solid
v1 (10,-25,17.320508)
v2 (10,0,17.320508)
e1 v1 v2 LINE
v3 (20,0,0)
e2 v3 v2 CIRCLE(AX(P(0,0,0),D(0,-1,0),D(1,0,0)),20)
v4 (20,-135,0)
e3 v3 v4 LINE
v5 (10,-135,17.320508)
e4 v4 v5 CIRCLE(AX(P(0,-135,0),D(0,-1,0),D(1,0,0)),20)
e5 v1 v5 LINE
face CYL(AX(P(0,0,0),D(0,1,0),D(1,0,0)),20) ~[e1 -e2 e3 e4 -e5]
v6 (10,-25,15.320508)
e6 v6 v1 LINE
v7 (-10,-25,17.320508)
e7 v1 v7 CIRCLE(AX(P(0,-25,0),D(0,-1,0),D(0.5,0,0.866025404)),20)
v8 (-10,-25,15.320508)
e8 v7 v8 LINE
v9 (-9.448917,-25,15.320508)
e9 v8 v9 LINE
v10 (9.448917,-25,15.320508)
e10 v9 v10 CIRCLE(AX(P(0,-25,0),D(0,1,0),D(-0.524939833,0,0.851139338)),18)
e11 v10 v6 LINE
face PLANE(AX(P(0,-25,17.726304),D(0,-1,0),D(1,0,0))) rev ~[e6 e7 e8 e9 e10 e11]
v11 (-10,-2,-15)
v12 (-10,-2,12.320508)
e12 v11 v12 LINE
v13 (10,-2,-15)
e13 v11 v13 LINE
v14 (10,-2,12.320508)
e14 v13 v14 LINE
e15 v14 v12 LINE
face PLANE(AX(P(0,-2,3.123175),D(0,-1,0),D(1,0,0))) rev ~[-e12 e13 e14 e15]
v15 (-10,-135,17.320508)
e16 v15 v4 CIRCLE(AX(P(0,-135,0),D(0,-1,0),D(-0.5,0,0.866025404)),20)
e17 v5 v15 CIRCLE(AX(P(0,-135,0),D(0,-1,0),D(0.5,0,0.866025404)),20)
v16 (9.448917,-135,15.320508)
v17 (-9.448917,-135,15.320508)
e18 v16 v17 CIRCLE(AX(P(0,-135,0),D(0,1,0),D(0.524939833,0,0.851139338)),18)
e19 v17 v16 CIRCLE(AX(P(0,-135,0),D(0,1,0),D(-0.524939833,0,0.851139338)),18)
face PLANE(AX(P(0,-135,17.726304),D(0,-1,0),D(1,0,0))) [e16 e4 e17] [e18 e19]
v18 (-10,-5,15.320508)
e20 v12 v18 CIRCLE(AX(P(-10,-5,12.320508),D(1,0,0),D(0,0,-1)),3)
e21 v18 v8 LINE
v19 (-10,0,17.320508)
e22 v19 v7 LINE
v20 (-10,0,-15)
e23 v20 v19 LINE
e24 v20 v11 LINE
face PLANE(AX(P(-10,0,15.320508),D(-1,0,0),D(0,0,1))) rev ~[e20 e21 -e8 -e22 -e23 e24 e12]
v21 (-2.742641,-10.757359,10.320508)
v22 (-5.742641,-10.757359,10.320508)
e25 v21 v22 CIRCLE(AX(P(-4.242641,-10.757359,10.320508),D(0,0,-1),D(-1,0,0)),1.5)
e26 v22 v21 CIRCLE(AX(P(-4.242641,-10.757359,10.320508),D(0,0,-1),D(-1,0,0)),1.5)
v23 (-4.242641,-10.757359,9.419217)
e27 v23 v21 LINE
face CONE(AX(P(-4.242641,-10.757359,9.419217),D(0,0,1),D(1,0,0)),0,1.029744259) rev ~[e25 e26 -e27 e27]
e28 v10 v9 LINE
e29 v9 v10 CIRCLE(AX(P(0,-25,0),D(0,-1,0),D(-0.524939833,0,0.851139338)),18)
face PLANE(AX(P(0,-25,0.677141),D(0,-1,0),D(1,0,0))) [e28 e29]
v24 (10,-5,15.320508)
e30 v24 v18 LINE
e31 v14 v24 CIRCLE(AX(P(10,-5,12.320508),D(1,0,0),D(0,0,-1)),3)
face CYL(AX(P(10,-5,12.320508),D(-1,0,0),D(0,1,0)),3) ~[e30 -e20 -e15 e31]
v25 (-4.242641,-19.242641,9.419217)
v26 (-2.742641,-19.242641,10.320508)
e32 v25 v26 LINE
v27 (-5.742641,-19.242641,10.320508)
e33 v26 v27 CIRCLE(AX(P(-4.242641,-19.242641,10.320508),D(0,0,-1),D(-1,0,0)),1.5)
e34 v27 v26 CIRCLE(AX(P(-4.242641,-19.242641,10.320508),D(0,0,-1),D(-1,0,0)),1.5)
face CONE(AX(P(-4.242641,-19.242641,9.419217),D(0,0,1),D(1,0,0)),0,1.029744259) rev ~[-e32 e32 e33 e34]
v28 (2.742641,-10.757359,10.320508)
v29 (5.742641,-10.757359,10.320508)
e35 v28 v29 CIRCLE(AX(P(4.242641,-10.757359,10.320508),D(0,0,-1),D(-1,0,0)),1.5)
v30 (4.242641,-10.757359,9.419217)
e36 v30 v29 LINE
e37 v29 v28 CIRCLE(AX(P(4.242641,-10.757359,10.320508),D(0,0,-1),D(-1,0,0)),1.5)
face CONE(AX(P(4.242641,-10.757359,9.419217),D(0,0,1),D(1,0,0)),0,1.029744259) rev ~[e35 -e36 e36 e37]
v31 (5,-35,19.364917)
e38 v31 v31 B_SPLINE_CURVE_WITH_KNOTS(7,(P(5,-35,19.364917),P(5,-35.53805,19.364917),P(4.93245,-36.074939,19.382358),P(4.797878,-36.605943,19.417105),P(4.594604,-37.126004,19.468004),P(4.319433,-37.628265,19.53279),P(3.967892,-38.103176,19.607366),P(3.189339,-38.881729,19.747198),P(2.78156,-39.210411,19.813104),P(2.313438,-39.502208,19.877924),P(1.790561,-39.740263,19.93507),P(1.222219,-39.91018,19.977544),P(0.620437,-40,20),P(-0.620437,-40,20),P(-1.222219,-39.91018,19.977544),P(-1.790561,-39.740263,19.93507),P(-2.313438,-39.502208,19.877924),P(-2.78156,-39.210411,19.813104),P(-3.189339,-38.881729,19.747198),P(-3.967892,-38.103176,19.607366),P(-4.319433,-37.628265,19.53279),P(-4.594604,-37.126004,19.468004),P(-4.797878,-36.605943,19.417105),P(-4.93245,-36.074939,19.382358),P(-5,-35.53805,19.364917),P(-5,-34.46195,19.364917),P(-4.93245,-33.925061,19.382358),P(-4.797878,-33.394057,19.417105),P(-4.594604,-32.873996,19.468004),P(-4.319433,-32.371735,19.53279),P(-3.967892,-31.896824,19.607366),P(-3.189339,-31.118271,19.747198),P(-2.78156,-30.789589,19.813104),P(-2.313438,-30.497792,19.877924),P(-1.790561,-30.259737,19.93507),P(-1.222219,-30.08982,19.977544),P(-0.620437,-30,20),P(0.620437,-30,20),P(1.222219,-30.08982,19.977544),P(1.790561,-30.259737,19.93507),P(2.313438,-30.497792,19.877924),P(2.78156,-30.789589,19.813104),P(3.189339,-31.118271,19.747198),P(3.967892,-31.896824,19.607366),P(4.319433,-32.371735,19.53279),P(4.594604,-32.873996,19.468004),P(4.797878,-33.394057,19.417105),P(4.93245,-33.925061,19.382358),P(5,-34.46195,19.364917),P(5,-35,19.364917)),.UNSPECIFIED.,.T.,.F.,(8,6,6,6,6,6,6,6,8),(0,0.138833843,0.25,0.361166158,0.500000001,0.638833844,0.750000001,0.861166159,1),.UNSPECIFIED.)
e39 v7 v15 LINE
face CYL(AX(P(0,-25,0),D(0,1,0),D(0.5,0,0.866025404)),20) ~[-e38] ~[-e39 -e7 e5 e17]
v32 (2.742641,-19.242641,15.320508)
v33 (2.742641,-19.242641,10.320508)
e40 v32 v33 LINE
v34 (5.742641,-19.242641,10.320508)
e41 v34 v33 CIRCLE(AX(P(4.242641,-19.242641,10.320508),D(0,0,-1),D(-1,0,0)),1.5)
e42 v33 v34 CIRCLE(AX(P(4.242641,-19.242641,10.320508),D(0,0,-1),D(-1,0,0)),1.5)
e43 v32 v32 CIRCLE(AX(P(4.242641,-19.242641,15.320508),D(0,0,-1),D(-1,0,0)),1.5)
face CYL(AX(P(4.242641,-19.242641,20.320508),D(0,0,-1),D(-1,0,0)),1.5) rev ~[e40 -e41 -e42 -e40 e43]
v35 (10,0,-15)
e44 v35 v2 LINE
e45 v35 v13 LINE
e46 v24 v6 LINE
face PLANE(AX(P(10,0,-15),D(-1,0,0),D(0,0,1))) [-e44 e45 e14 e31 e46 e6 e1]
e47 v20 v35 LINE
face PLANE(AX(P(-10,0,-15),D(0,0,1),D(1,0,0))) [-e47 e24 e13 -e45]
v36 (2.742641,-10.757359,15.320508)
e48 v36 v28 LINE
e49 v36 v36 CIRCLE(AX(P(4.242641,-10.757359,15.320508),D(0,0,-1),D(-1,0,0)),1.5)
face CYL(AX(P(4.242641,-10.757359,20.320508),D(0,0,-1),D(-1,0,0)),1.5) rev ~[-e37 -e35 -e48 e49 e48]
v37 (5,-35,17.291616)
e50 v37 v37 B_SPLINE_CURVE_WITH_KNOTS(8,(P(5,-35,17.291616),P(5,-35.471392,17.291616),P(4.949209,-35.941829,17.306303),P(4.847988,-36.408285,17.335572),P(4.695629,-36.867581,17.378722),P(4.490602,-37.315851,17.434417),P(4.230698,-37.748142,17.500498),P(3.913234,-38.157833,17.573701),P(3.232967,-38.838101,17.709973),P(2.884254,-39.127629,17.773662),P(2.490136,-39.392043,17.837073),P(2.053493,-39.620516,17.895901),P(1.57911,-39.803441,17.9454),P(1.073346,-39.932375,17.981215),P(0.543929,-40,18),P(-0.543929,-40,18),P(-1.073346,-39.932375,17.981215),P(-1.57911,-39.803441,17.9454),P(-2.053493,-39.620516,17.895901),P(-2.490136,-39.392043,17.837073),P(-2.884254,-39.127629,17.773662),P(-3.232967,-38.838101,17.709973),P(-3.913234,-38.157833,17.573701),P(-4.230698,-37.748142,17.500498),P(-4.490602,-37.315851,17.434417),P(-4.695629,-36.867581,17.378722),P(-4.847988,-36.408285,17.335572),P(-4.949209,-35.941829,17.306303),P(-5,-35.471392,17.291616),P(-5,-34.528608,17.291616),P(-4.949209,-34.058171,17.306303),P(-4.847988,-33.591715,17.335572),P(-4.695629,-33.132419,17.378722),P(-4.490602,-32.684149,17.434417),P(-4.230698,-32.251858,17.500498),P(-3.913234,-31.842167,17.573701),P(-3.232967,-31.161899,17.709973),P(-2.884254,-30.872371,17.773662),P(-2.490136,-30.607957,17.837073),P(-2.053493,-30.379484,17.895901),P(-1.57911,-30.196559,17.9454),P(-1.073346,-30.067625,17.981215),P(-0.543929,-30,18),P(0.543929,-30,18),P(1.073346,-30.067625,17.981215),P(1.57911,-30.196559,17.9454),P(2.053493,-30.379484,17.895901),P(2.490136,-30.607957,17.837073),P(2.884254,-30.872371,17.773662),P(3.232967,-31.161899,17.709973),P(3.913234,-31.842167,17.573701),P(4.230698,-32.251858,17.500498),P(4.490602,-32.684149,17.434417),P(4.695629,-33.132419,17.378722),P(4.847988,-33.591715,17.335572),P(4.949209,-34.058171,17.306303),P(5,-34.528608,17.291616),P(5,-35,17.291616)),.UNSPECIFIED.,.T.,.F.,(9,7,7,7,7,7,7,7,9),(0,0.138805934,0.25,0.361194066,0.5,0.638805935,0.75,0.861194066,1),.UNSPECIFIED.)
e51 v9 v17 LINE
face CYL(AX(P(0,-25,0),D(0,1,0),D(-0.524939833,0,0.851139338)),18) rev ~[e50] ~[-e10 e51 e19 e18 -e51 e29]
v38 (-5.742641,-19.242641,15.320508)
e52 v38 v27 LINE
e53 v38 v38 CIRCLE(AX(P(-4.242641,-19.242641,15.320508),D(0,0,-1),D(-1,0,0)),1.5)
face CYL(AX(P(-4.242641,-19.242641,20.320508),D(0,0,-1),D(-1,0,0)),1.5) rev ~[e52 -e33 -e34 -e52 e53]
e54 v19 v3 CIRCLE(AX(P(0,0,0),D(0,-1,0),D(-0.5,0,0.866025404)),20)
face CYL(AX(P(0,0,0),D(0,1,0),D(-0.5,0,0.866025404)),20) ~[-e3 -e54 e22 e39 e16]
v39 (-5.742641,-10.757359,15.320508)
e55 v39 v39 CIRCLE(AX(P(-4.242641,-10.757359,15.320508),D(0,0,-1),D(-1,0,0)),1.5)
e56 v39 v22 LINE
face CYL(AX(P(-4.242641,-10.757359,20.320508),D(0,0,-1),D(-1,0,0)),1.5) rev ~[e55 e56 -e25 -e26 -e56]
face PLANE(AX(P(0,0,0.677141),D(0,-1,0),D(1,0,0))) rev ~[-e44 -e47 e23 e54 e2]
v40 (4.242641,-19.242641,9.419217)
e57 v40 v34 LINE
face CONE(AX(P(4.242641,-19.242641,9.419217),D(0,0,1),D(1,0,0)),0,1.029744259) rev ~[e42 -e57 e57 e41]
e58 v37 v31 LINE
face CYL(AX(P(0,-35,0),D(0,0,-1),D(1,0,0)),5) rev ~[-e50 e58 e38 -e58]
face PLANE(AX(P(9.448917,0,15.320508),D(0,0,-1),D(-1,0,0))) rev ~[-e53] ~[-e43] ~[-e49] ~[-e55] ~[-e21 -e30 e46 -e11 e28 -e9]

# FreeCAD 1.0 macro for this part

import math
import FreeCAD as App
import Part
import Sketcher


def edges_at(feature, points):
    """Names of the edges that pass closest to the given points."""
    edges = feature.Shape.Edges
    near = lambda p: min(range(len(edges)), key=lambda i: edges[i].distToShape(Part.Vertex(*p))[0])
    return sorted({f"Edge{near(p) + 1}" for p in points})

doc = App.newDocument("Part")
params = doc.addObject("Spreadsheet::Sheet", "Params")
for row, (alias, value) in enumerate([
    ("sketch1_radius", "20 mm"),
    ("sketch1_radius2", "18 mm"),
    ("sketch1_height", "2 mm"),
    ("pad1_length", "135 mm"),
    ("sketch2_radius", "20 mm"),
    ("sketch2_radius2", "18 mm"),
    ("sketch2_height", "2 mm"),
    ("pad2_length", "110 mm"),
    ("sketch3_radius", "18 mm"),
    ("pad3_length", "25 mm"),
    ("sketch4_width", "20 mm"),
    ("pocket1_length", "2 mm"),
    ("sketch5_diameter", "3 mm"),
    ("hole_diameter", "3 mm"),
    ("hole_depth", "5 mm"),
    ("sketch6_diameter", "10 mm"),
    ("fillet_radius", "3 mm"),
], start=1):
    params.set(f"A{row}", alias)
    params.set(f"B{row}", "=" + value)
    params.setAlias(f"B{row}", alias)

body = doc.addObject("PartDesign::Body", "Body")

# Sketch on XZ plane
sketch1 = body.newObject("Sketcher::SketchObject", "Sketch")
sketch1.AttachmentSupport = (doc.getObject("XZ_Plane"), [""])
sketch1.MapMode = "FlatFace"
sketch1.addGeometry([
    Part.ArcOfCircle(Part.Circle(App.Vector(0, 0, 0), App.Vector(0, 0, 1), 20), math.radians(120), math.radians(360)),  # 0
    Part.ArcOfCircle(Part.Circle(App.Vector(0, 0, 0), App.Vector(0, 0, 1), 20), math.radians(0), math.radians(60)),  # 1
    Part.LineSegment(App.Vector(10, 17.3, 0), App.Vector(10, 15.3, 0)),  # 2
    Part.LineSegment(App.Vector(10, 15.3, 0), App.Vector(9.4, 15.3, 0)),  # 3
    Part.ArcOfCircle(Part.Circle(App.Vector(0, 0, 0), App.Vector(0, 0, 1), 18), math.radians(122), math.radians(418)),  # 4
    Part.LineSegment(App.Vector(-9.4, 15.3, 0), App.Vector(-10, 15.3, 0)),  # 5
    Part.LineSegment(App.Vector(-10, 15.3, 0), App.Vector(-10, 17.3, 0)),  # 6
], False)
sketch1.addConstraint([
    Sketcher.Constraint("Tangent", 0, 2, 1, 1),
    Sketcher.Constraint("Coincident", 1, 2, 2, 1),
    Sketcher.Constraint("Coincident", 2, 2, 3, 1),
    Sketcher.Constraint("Coincident", 3, 2, 4, 2),
    Sketcher.Constraint("Coincident", 4, 1, 5, 1),
    Sketcher.Constraint("Coincident", 5, 2, 6, 1),
    Sketcher.Constraint("Coincident", 6, 2, 0, 1),
    Sketcher.Constraint("Vertical", 2),
    Sketcher.Constraint("Horizontal", 3),
    Sketcher.Constraint("Horizontal", 5),
    Sketcher.Constraint("Vertical", 6),
    Sketcher.Constraint("Coincident", 0, 3, -1, 1),
    Sketcher.Constraint("Coincident", 4, 3, -1, 1),
    Sketcher.Constraint("Equal", 0, 1),
    Sketcher.Constraint("Symmetric", 2, 2, 5, 2, -2),
    Sketcher.Constraint("PointOnObject", 0, 2, -1),
    Sketcher.Constraint("Radius", 0, 20.0),
    Sketcher.Constraint("Radius", 4, 18.0),
    Sketcher.Constraint("DistanceY", 2, 2, 2, 1, 2.0),
    Sketcher.Constraint("DistanceX", -1, 1, 1, 2, 10.0),
])
sketch1.setExpression("Constraints[16]", "Params.sketch1_radius")
sketch1.setExpression("Constraints[17]", "Params.sketch1_radius2")
sketch1.setExpression("Constraints[18]", "Params.sketch1_height")
pad1 = body.newObject("PartDesign::Pad", "Pad")
pad1.Profile = sketch1
pad1.setExpression("Length", "Params.pad1_length")

# Sketch on XZ plane
sketch2 = body.newObject("Sketcher::SketchObject", "Sketch001")
sketch2.AttachmentSupport = (doc.getObject("XZ_Plane"), [""])
sketch2.MapMode = "FlatFace"
sketch2.AttachmentOffset = App.Placement(App.Vector(0, 0, 25), App.Rotation())
sketch2.addGeometry([
    Part.LineSegment(App.Vector(10, 15.3, 0), App.Vector(10, 17.3, 0)),  # 0
    Part.ArcOfCircle(Part.Circle(App.Vector(0, 0, 0), App.Vector(0, 0, 1), 20), math.radians(60), math.radians(120)),  # 1
    Part.LineSegment(App.Vector(-10, 17.3, 0), App.Vector(-10, 15.3, 0)),  # 2
    Part.LineSegment(App.Vector(-10, 15.3, 0), App.Vector(-9.4, 15.3, 0)),  # 3
    Part.ArcOfCircle(Part.Circle(App.Vector(0, 0, 0), App.Vector(0, 0, 1), 18), math.radians(58), math.radians(122)),  # 4
    Part.LineSegment(App.Vector(9.4, 15.3, 0), App.Vector(10, 15.3, 0)),  # 5
], False)
sketch2.addConstraint([
    Sketcher.Constraint("Coincident", 0, 2, 1, 1),
    Sketcher.Constraint("Coincident", 1, 2, 2, 1),
    Sketcher.Constraint("Coincident", 2, 2, 3, 1),
    Sketcher.Constraint("Coincident", 3, 2, 4, 2),
    Sketcher.Constraint("Coincident", 4, 1, 5, 1),
    Sketcher.Constraint("Coincident", 5, 2, 0, 1),
    Sketcher.Constraint("Vertical", 0),
    Sketcher.Constraint("Vertical", 2),
    Sketcher.Constraint("Horizontal", 3),
    Sketcher.Constraint("Horizontal", 5),
    Sketcher.Constraint("Coincident", 1, 3, -1, 1),
    Sketcher.Constraint("Coincident", 4, 3, -1, 1),
    Sketcher.Constraint("Symmetric", 2, 2, 5, 2, -2),
    Sketcher.Constraint("Radius", 1, 20.0),
    Sketcher.Constraint("Radius", 4, 18.0),
    Sketcher.Constraint("DistanceY", 0, 1, 0, 2, 2.0),
    Sketcher.Constraint("DistanceX", -1, 1, 0, 2, 10.0),
])
sketch2.setExpression("Constraints[13]", "Params.sketch2_radius")
sketch2.setExpression("Constraints[14]", "Params.sketch2_radius2")
sketch2.setExpression("Constraints[15]", "Params.sketch2_height")
pad2 = body.newObject("PartDesign::Pad", "Pad001")
pad2.Profile = sketch2
pad2.setExpression("Length", "Params.pad2_length")

# Sketch on XZ plane
sketch3 = body.newObject("Sketcher::SketchObject", "Sketch002")
sketch3.AttachmentSupport = (doc.getObject("XZ_Plane"), [""])
sketch3.MapMode = "FlatFace"
sketch3.addGeometry([
    Part.LineSegment(App.Vector(9, 15, 0), App.Vector(-9, 15, 0)),
    Part.ArcOfCircle(Part.Circle(App.Vector(0, 0, 0), App.Vector(0, 0, 1), 18), math.radians(122), math.radians(418)),
], False)
sketch3.addConstraint([
    Sketcher.Constraint("Coincident", 0, 1, 1, 2),
    Sketcher.Constraint("Coincident", 1, 1, 0, 2),
    Sketcher.Constraint("Horizontal", 0),
    Sketcher.Constraint("Coincident", 1, 3, -1, 1),
    Sketcher.Constraint("Radius", 1, 18.0),
    Sketcher.Constraint("DistanceX", 0, 2, 0, 1, 18.897834),
])
sketch3.setExpression("Constraints[4]", "Params.sketch3_radius")
pad3 = body.newObject("PartDesign::Pad", "Pad002")
pad3.Profile = sketch3
pad3.setExpression("Length", "Params.pad3_length")

# Sketch on XZ plane
sketch4 = body.newObject("Sketcher::SketchObject", "Sketch003")
sketch4.AttachmentSupport = (doc.getObject("XZ_Plane"), [""])
sketch4.MapMode = "FlatFace"
sketch4.addGeometry([
    Part.LineSegment(App.Vector(-10, 21, 0), App.Vector(-10, -15, 0)),
    Part.LineSegment(App.Vector(-10, -15, 0), App.Vector(10, -15, 0)),
    Part.LineSegment(App.Vector(10, -15, 0), App.Vector(10, 21, 0)),
    Part.LineSegment(App.Vector(10, 21, 0), App.Vector(-10, 21, 0)),
], False)
sketch4.addConstraint([
    Sketcher.Constraint("Coincident", 0, 2, 1, 1),
    Sketcher.Constraint("Coincident", 1, 2, 2, 1),
    Sketcher.Constraint("Coincident", 2, 2, 3, 1),
    Sketcher.Constraint("Coincident", 3, 2, 0, 1),
    Sketcher.Constraint("Vertical", 0),
    Sketcher.Constraint("Horizontal", 1),
    Sketcher.Constraint("Vertical", 2),
    Sketcher.Constraint("Horizontal", 3),
    Sketcher.Constraint("DistanceX", 1, 1, 1, 2, 20.0),
    Sketcher.Constraint("DistanceX", 0, 2, -1, 1, 10.0),
    Sketcher.Constraint("DistanceY", 0, 2, -1, 1, 15.0),
    Sketcher.Constraint("DistanceY", 0, 2, 0, 1, 36.246351),
])
sketch4.setExpression("Constraints[8]", "Params.sketch4_width")
pocket1 = body.newObject("PartDesign::Pocket", "Pocket")
pocket1.Profile = sketch4
pocket1.setExpression("Length", "Params.pocket1_length")
pocket1.Reversed = True

# Sketch on XY plane
sketch5 = body.newObject("Sketcher::SketchObject", "Sketch004")
sketch5.AttachmentSupport = (doc.getObject("XY_Plane"), [""])
sketch5.MapMode = "FlatFace"
sketch5.AttachmentOffset = App.Placement(App.Vector(0, 0, 15.320508), App.Rotation())
sketch5.addGeometry([
    Part.Circle(App.Vector(4.2, -10.8, 0), App.Vector(0, 0, 1), 1.5),
    Part.Circle(App.Vector(-4.2, -10.8, 0), App.Vector(0, 0, 1), 1.5),
    Part.Circle(App.Vector(-4.2, -19.2, 0), App.Vector(0, 0, 1), 1.5),
    Part.Circle(App.Vector(4.2, -19.2, 0), App.Vector(0, 0, 1), 1.5),
], False)
sketch5.addConstraint([
    Sketcher.Constraint("Equal", 0, 1),
    Sketcher.Constraint("Equal", 1, 2),
    Sketcher.Constraint("Equal", 2, 3),
    Sketcher.Constraint("Symmetric", 0, 3, 1, 3, -2),
    Sketcher.Constraint("Symmetric", 2, 3, 3, 3, -2),
    Sketcher.Constraint("Vertical", 1, 3, 2, 3),
    Sketcher.Constraint("Diameter", 0, 3.0),
    Sketcher.Constraint("DistanceX", -1, 1, 0, 3, 4.242641),
    Sketcher.Constraint("DistanceY", 0, 3, -1, 1, 10.757359),
    Sketcher.Constraint("DistanceY", 2, 3, -1, 1, 19.242641),
])
sketch5.setExpression("Constraints[6]", "Params.sketch5_diameter")
doc.recompute()
hole = body.newObject("PartDesign::Hole", "Hole")
hole.Profile = sketch5
hole.ThreadType = "None"
hole.setExpression("Diameter", "Params.hole_diameter")
hole.DepthType = "Dimension"
hole.setExpression("Depth", "Params.hole_depth")
hole.DrillPoint = "Angled"
hole.DrillPointAngle = 118

# Sketch on XY plane
sketch6 = body.newObject("Sketcher::SketchObject", "Sketch005")
sketch6.AttachmentSupport = (doc.getObject("XY_Plane"), [""])
sketch6.MapMode = "FlatFace"
sketch6.addGeometry(Part.Circle(App.Vector(0, -35, 0), App.Vector(0, 0, 1), 5), False)
sketch6.addConstraint([
    Sketcher.Constraint("PointOnObject", 0, 3, -2),
    Sketcher.Constraint("Diameter", 0, 10.0),
    Sketcher.Constraint("DistanceY", 0, 3, -1, 1, 35.0),
])
sketch6.setExpression("Constraints[1]", "Params.sketch6_diameter")
pocket2 = body.newObject("PartDesign::Pocket", "Pocket001")
pocket2.Profile = sketch6
pocket2.Type = "ThroughAll"
pocket2.Reversed = True
doc.recompute()

fillet = body.newObject("PartDesign::Fillet", "Fillet")
fillet.Base = (pocket2, edges_at(pocket2, [(0, -2, 15.321)]))
fillet.setExpression("Radius", "Params.fillet_radius")

doc.recompute()
